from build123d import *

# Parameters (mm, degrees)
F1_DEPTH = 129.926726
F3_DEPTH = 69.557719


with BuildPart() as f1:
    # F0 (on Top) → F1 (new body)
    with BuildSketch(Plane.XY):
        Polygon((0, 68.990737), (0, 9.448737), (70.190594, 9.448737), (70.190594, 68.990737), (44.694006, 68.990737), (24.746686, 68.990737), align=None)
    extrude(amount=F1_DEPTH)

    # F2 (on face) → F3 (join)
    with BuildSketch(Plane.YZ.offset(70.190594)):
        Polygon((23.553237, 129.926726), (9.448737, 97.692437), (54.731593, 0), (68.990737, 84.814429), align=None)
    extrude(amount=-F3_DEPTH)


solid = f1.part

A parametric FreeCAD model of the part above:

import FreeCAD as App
import Part
import Sketcher


def add_polygon(sketch, points):
    """Adds a closed chain of lines whose ends are joined by coincident constraints."""
    first, n = sketch.GeometryCount, len(points)
    for a, b in zip(points, points[1:] + points[:1]):
        sketch.addGeometry(Part.LineSegment(App.Vector(*a, 0), App.Vector(*b, 0)), False)
    for i in range(n):
        sketch.addConstraint(Sketcher.Constraint("Coincident", first + i, 2, first + (i + 1) % n, 1))

doc = App.newDocument("Part")
body = doc.addObject("PartDesign::Body", "Body")

sketch1 = doc.addObject("Sketcher::SketchObject", "Sketch")
body.addObject(sketch1)
sketch1.AttachmentSupport = (doc.XY_Plane, [""])
sketch1.MapMode = "FlatFace"
add_polygon(sketch1, [(0, 69), (0, 9), (70, 9), (70, 69)])
sketch1.addConstraint([
    Sketcher.Constraint("Vertical", 0),
    Sketcher.Constraint("Horizontal", 1),
    Sketcher.Constraint("Vertical", 2),
    Sketcher.Constraint("Horizontal", 3),
    Sketcher.Constraint("PointOnObject", 0, 2, -2),
    Sketcher.Constraint("DistanceY", 0, 2, 0, 1, 59.542),
    Sketcher.Constraint("DistanceX", 1, 1, 1, 2, 70.190594),
    Sketcher.Constraint("DistanceY", -1, 1, 0, 2, 9.448737),
])
pad1 = doc.addObject("PartDesign::Pad", "Pad")
body.addObject(pad1)
pad1.Profile = sketch1
pad1.Length = 129.926726

sketch2 = doc.addObject("Sketcher::SketchObject", "Sketch001")
body.addObject(sketch2)
sketch2.AttachmentSupport = (doc.YZ_Plane, [""])
sketch2.MapMode = "FlatFace"
sketch2.AttachmentOffset = App.Placement(App.Vector(0, 0, 70.190594), App.Rotation())
add_polygon(sketch2, [(24, 130), (9, 98), (55, 0), (69, 85)])
sketch2.addConstraint([
    Sketcher.Constraint("PointOnObject", 1, 2, -1),
    Sketcher.Constraint("DistanceX", 0, 2, 2, 2, 59.542),
    Sketcher.Constraint("DistanceX", 0, 2, 3, 2, 14.1045),
    Sketcher.Constraint("Distance", 0, 35.18503),
    Sketcher.Constraint("Distance", 1, 107.67706),
    Sketcher.Constraint("Distance", 3, 64.028788),
    Sketcher.Constraint("DistanceY", -1, 1, 2, 2, 84.814429),
    Sketcher.Constraint("DistanceX", -1, 1, 0, 2, 9.448737),
])
pad2 = doc.addObject("PartDesign::Pad", "Pad001")
body.addObject(pad2)
pad2.Profile = sketch2
pad2.Length = 69.557719
pad2.Reversed = True

doc.recompute()
